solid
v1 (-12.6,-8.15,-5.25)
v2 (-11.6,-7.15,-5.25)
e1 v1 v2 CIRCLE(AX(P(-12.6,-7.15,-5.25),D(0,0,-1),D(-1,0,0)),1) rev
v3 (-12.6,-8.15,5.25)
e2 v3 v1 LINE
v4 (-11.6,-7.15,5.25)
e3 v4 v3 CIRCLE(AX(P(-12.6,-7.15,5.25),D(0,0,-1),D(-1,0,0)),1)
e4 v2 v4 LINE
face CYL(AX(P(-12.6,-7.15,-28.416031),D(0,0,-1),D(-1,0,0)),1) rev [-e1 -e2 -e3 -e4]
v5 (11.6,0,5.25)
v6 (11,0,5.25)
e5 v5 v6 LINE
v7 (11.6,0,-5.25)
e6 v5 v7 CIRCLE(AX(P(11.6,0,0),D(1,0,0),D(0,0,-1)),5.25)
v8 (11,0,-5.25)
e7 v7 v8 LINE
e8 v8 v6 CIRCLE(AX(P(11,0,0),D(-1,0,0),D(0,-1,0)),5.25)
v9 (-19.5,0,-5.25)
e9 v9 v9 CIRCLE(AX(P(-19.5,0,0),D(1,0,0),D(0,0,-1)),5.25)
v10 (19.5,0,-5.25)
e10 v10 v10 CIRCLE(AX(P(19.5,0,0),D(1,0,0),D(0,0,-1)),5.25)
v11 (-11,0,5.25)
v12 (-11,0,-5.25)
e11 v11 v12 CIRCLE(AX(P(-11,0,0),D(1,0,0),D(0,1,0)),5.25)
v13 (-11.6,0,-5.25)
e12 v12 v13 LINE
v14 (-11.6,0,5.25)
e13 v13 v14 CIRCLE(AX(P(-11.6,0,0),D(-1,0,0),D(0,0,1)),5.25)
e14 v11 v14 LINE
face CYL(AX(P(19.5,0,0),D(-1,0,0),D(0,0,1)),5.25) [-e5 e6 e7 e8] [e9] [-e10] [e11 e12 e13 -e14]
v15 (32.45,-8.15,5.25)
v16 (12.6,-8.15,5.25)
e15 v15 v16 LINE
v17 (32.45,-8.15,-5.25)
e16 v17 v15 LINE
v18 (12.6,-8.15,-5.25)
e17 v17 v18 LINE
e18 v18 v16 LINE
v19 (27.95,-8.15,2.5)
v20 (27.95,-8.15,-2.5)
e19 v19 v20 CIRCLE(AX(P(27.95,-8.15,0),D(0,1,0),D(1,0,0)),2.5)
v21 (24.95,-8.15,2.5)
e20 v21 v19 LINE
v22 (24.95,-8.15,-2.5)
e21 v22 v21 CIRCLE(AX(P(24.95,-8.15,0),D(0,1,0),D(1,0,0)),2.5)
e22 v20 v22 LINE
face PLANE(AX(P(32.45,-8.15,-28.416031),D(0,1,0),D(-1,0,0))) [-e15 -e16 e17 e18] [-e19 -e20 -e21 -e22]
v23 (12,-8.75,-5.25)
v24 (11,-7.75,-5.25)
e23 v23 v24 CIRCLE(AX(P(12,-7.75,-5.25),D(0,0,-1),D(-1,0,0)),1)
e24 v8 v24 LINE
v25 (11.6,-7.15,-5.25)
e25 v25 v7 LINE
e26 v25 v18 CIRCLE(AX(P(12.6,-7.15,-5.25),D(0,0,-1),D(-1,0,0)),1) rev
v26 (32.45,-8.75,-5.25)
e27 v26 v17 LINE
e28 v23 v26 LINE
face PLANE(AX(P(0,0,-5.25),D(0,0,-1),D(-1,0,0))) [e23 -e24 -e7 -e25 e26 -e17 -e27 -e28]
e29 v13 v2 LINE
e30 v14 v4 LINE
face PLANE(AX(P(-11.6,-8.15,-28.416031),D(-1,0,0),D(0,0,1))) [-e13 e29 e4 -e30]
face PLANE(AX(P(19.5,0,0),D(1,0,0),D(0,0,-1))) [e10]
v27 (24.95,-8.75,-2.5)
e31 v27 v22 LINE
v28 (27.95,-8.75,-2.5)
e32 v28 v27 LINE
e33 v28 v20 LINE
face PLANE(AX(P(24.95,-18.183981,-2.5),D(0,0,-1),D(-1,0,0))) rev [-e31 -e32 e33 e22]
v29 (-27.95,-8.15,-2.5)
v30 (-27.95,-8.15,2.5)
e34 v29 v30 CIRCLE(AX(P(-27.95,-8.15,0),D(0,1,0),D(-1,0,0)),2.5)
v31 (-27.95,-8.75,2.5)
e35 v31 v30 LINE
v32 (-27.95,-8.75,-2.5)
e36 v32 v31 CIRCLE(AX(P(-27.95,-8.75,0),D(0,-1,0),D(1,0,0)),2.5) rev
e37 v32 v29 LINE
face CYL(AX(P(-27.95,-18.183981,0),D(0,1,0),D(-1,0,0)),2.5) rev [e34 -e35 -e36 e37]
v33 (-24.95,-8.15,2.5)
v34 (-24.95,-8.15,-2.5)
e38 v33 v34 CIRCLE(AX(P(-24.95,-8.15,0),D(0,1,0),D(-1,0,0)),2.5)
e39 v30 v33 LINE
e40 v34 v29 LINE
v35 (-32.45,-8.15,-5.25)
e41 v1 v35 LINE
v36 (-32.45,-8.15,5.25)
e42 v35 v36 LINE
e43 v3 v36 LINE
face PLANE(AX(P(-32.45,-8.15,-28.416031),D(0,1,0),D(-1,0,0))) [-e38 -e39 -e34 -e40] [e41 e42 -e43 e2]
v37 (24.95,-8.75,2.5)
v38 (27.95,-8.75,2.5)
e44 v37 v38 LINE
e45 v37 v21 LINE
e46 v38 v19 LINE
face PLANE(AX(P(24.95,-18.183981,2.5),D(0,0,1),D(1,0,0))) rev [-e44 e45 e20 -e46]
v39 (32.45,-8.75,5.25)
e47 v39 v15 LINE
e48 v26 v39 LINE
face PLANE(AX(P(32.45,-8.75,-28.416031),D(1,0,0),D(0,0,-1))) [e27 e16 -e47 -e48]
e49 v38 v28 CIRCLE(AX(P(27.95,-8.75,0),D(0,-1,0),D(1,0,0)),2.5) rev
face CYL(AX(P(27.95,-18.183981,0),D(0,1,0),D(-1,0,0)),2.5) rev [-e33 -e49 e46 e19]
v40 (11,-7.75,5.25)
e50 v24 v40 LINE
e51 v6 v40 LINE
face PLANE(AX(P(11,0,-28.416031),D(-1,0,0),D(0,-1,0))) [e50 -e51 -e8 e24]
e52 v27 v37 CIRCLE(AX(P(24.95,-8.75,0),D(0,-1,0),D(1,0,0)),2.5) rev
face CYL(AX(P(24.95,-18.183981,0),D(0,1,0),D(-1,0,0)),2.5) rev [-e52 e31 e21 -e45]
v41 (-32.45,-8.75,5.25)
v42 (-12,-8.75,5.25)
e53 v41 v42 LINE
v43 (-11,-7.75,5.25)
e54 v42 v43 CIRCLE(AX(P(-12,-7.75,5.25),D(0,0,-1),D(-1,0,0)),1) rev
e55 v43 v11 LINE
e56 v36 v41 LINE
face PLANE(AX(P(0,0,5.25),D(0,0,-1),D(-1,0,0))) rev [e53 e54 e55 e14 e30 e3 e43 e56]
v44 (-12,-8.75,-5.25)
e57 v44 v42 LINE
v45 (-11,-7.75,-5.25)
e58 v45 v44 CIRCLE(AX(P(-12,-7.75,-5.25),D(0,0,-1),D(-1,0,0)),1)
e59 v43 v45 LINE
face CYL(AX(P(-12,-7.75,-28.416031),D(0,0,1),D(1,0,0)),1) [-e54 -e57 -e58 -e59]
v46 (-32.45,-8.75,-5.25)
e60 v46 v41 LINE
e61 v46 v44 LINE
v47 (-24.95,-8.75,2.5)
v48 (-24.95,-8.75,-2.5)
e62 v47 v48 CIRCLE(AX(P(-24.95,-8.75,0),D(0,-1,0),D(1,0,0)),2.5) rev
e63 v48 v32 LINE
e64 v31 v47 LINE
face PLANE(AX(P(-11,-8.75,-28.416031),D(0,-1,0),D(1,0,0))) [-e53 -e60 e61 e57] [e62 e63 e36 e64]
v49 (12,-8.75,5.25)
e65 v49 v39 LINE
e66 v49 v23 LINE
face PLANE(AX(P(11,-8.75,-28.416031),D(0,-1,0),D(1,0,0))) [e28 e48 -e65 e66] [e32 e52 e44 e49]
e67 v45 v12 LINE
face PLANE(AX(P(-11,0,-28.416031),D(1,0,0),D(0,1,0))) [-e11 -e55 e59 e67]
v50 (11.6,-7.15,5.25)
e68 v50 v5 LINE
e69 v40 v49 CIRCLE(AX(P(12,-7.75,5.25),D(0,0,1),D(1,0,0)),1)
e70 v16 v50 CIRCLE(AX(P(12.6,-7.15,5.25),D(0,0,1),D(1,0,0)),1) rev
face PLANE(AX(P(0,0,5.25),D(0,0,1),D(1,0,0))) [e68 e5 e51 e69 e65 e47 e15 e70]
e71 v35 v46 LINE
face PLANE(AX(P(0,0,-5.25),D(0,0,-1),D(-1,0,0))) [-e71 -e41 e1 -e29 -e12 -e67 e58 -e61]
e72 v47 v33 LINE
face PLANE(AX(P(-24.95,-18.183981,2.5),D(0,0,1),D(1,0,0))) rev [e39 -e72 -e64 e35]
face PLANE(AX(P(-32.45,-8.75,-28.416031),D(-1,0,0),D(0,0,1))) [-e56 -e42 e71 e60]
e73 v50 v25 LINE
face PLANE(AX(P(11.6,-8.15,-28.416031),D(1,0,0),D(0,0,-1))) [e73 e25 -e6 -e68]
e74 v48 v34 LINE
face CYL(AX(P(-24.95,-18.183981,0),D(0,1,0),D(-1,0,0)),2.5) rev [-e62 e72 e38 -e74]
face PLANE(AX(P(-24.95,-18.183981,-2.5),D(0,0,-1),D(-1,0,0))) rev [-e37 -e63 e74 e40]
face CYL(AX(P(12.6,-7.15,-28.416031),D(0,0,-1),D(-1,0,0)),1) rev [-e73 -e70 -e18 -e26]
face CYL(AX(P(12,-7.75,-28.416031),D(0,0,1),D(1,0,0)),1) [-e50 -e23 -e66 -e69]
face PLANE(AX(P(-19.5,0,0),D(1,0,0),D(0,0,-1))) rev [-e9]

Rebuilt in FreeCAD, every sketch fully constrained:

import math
import FreeCAD as App
import Part
import Sketcher
from FreeCAD import Vector


def edges_at(feature, points):
    """Names of the edges that pass closest to the given points."""
    edges = feature.Shape.Edges
    near = lambda p: min(range(len(edges)), key=lambda i: edges[i].distToShape(Part.Vertex(*p))[0])
    return sorted({f"Edge{near(p) + 1}" for p in points})


def add_polygon(sketch, points):
    """Adds a closed chain of lines whose ends are joined by coincident constraints."""
    first, n = sketch.GeometryCount, len(points)
    for a, b in zip(points, points[1:] + points[:1]):
        sketch.addGeometry(Part.LineSegment(App.Vector(*a, 0), App.Vector(*b, 0)), False)
    for i in range(n):
        sketch.addConstraint(Sketcher.Constraint("Coincident", first + i, 2, first + (i + 1) % n, 1))

doc = App.newDocument("Part")
body = doc.addObject("PartDesign::Body", "Body")

# Sketch on YZ plane
sketch1 = body.newObject("Sketcher::SketchObject", "Sketch")
sketch1.AttachmentSupport = (doc.getObject("YZ_Plane"), [""])
sketch1.MapMode = "FlatFace"
sketch1.addGeometry(Part.Circle(Vector(0, 0, 0), Vector(0, 0, 1), 5.25), False)
sketch1.addConstraint([
    Sketcher.Constraint("Coincident", 0, 3, -1, 1),
    Sketcher.Constraint("Diameter", 0, 10.5),
])
pad1 = body.newObject("PartDesign::Pad", "Pad")
pad1.Profile = sketch1
pad1.Length = 39
pad1.Midplane = True

# Sketch on XY plane
sketch2 = body.newObject("Sketcher::SketchObject", "Sketch001")
sketch2.AttachmentSupport = (doc.getObject("XY_Plane"), [""])
sketch2.MapMode = "FlatFace"
sketch2.AttachmentOffset = App.Placement(Vector(0, 0, 5.25), App.Rotation())
add_polygon(sketch2, [(-11.6, -8.15), (-32.45, -8.15), (-32.45, -8.75), (-11, -8.75), (-11, 0), (-11.6, 0)])  # lines 0-5
add_polygon(sketch2, [(32.45, -8.15), (11.6, -8.15), (11.6, 0), (11, 0), (11, -8.75), (32.45, -8.75)])  # lines 6-11
sketch2.addConstraint([
    Sketcher.Constraint("Horizontal", 0),
    Sketcher.Constraint("Vertical", 1),
    Sketcher.Constraint("Horizontal", 2),
    Sketcher.Constraint("Vertical", 3),
    Sketcher.Constraint("Horizontal", 4),
    Sketcher.Constraint("Vertical", 5),
    Sketcher.Constraint("Horizontal", 6),
    Sketcher.Constraint("Vertical", 7),
    Sketcher.Constraint("Horizontal", 8),
    Sketcher.Constraint("Vertical", 9),
    Sketcher.Constraint("Horizontal", 10),
    Sketcher.Constraint("Vertical", 11),
    Sketcher.Constraint("Symmetric", 4, 2, 7, 2, -1, 1),
    Sketcher.Constraint("Symmetric", 3, 2, 8, 2, -2),
    Sketcher.Constraint("Symmetric", 1, 2, 10, 2, -2),
    Sketcher.Constraint("Horizontal", 5, 2, 6, 2),
    Sketcher.Constraint("Equal", 8, 1),
    Sketcher.Constraint("DistanceX", 4, 2, 4, 1, 0.6),
    Sketcher.Constraint("DistanceX", 2, 2, -1, 1, 11.0),
    Sketcher.Constraint("DistanceX", 0, 2, 0, 1, 20.85),
    Sketcher.Constraint("DistanceY", 3, 1, 3, 2, 8.75),
])
pad2 = body.newObject("PartDesign::Pad", "Pad001")
pad2.Profile = sketch2
pad2.Length = 10.5
pad2.Reversed = True
doc.recompute()

fillet = body.newObject("PartDesign::Fillet", "Fillet")
fillet.Base = (pad2, edges_at(pad2, [
    (-11, -8.75, 0),
    (-11.6, -8.15, 0),
    (11.6, -8.15, 0),
    (11, -8.75, 0),
]))
fillet.Radius = 1

# Sketch on XZ plane
sketch3 = body.newObject("Sketcher::SketchObject", "Sketch002")
sketch3.AttachmentSupport = (doc.getObject("XZ_Plane"), [""])
sketch3.MapMode = "FlatFace"
sketch3.AttachmentOffset = App.Placement(Vector(0, 0, 8.15), App.Rotation())
sketch3.addGeometry([
    Part.LineSegment(Vector(-27.95, 2.5, 0), Vector(-24.95, 2.5, 0)),  # 0
    Part.ArcOfCircle(Part.Circle(Vector(-24.95, 0, 0), Vector(0, 0, 1), 2.5), math.radians(-90), math.radians(90)),  # 1
    Part.LineSegment(Vector(-24.95, -2.5, 0), Vector(-27.95, -2.5, 0)),  # 2
    Part.ArcOfCircle(Part.Circle(Vector(-27.95, 0, 0), Vector(0, 0, 1), 2.5), math.radians(90), math.radians(270)),  # 3
    Part.LineSegment(Vector(24.95, 2.5, 0), Vector(27.95, 2.5, 0)),  # 4
    Part.ArcOfCircle(Part.Circle(Vector(27.95, 0, 0), Vector(0, 0, 1), 2.5), math.radians(-90), math.radians(90)),  # 5
    Part.LineSegment(Vector(27.95, -2.5, 0), Vector(24.95, -2.5, 0)),  # 6
    Part.ArcOfCircle(Part.Circle(Vector(24.95, 0, 0), Vector(0, 0, 1), 2.5), math.radians(90), math.radians(270)),  # 7
], False)
sketch3.addConstraint([
    Sketcher.Constraint("Tangent", 0, 2, 1, 2),
    Sketcher.Constraint("Tangent", 1, 1, 2, 1),
    Sketcher.Constraint("Tangent", 2, 2, 3, 2),
    Sketcher.Constraint("Tangent", 3, 1, 0, 1),
    Sketcher.Constraint("Tangent", 4, 2, 5, 2),
    Sketcher.Constraint("Tangent", 5, 1, 6, 1),
    Sketcher.Constraint("Tangent", 6, 2, 7, 2),
    Sketcher.Constraint("Tangent", 7, 1, 4, 1),
    Sketcher.Constraint("Horizontal", 0),
    Sketcher.Constraint("Horizontal", 2),
    Sketcher.Constraint("Horizontal", 4),
    Sketcher.Constraint("Horizontal", 6),
    Sketcher.Constraint("Equal", 3, 5),
    Sketcher.Constraint("Symmetric", 3, 3, 5, 3, -1, 1),
    Sketcher.Constraint("Symmetric", 1, 3, 7, 3, -2),
    Sketcher.Constraint("Radius", 1, 2.5),
    Sketcher.Constraint("DistanceX", 0, 1, 0, 2, 3.0),
    Sketcher.Constraint("DistanceX", 1, 3, 5, 3, 52.9),
])
pocket1 = body.newObject("PartDesign::Pocket", "Pocket")
pocket1.Profile = sketch3
pocket1.Length = 0.6
pocket1.Reversed = True

doc.recompute()
